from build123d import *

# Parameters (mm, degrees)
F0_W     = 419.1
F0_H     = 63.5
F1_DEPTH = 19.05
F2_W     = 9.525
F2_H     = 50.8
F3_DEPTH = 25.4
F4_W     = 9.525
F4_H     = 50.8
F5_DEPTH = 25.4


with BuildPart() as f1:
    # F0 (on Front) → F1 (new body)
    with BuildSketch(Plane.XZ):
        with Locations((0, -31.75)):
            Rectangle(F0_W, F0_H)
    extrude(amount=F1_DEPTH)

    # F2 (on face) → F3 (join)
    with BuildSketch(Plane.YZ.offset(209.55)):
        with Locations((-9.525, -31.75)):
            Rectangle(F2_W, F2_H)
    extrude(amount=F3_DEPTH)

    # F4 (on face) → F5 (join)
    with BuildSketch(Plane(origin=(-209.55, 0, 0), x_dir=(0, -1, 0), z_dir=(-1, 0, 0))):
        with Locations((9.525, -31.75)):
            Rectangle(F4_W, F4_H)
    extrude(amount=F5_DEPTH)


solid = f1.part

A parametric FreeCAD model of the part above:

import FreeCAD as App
import Part
import Sketcher
from FreeCAD import Vector
Q = App.Units.Quantity

doc = App.newDocument("Part")
body = doc.addObject("PartDesign::Body", "Body")

# Sketch on XZ plane
sketch1 = body.newObject("Sketcher::SketchObject", "Sketch")
sketch1.AttachmentSupport = (doc.getObject("XZ_Plane"), [""])
sketch1.MapMode = "FlatFace"
sketch1.addGeometry(Part.LineSegment(Vector(-210, 0, 0), Vector(-210, -64, 0)), False)
sketch1.addGeometry(Part.LineSegment(Vector(-210, -64, 0), Vector(210, -64, 0)), False)
sketch1.addGeometry(Part.LineSegment(Vector(210, -64, 0), Vector(210, 0, 0)), False)
sketch1.addGeometry(Part.LineSegment(Vector(210, 0, 0), Vector(-210, 0, 0)), False)
sketch1.addConstraint(Sketcher.Constraint("Coincident", 0, 2, 1, 1))
sketch1.addConstraint(Sketcher.Constraint("Coincident", 1, 2, 2, 1))
sketch1.addConstraint(Sketcher.Constraint("Coincident", 2, 2, 3, 1))
sketch1.addConstraint(Sketcher.Constraint("Coincident", 3, 2, 0, 1))
sketch1.addConstraint(Sketcher.Constraint("Vertical", 0))
sketch1.addConstraint(Sketcher.Constraint("Horizontal", 1))
sketch1.addConstraint(Sketcher.Constraint("Vertical", 2))
sketch1.addConstraint(Sketcher.Constraint("Horizontal", 3))
sketch1.addConstraint(Sketcher.Constraint("Symmetric", 2, 2, 3, 2, -1, 1))
sketch1.addConstraint(Sketcher.Constraint("DistanceX", 1, 1, 1, 2, Q("16.5 in")))
sketch1.addConstraint(Sketcher.Constraint("DistanceY", 0, 2, 0, 1, Q("2.5 in")))
pad1 = body.newObject("PartDesign::Pad", "Pad")
pad1.Profile = sketch1
pad1.Length = Q("0.75 in")

# Sketch on YZ plane
sketch2 = body.newObject("Sketcher::SketchObject", "Sketch001")
sketch2.AttachmentSupport = (doc.getObject("YZ_Plane"), [""])
sketch2.MapMode = "FlatFace"
sketch2.AttachmentOffset = App.Placement(Vector(0, 0, 8.25 * 25.4), App.Rotation())
sketch2.addGeometry(Part.LineSegment(Vector(-14, -6, 0), Vector(-14, -57, 0)), False)
sketch2.addGeometry(Part.LineSegment(Vector(-14, -57, 0), Vector(-5, -57, 0)), False)
sketch2.addGeometry(Part.LineSegment(Vector(-5, -57, 0), Vector(-5, -6, 0)), False)
sketch2.addGeometry(Part.LineSegment(Vector(-5, -6, 0), Vector(-14, -6, 0)), False)
sketch2.addConstraint(Sketcher.Constraint("Coincident", 0, 2, 1, 1))
sketch2.addConstraint(Sketcher.Constraint("Coincident", 1, 2, 2, 1))
sketch2.addConstraint(Sketcher.Constraint("Coincident", 2, 2, 3, 1))
sketch2.addConstraint(Sketcher.Constraint("Coincident", 3, 2, 0, 1))
sketch2.addConstraint(Sketcher.Constraint("Vertical", 0))
sketch2.addConstraint(Sketcher.Constraint("Horizontal", 1))
sketch2.addConstraint(Sketcher.Constraint("Vertical", 2))
sketch2.addConstraint(Sketcher.Constraint("Horizontal", 3))
sketch2.addConstraint(Sketcher.Constraint("DistanceY", 0, 2, 0, 1, Q("2 in")))
sketch2.addConstraint(Sketcher.Constraint("DistanceX", 1, 1, 1, 2, Q("0.375 in")))
sketch2.addConstraint(Sketcher.Constraint("DistanceY", 0, 2, -1, 1, Q("2.25 in")))
sketch2.addConstraint(Sketcher.Constraint("DistanceX", 0, 2, -1, 1, Q("0.5625 in")))
pad2 = body.newObject("PartDesign::Pad", "Pad001")
pad2.Profile = sketch2
pad2.Length = Q("1 in")

# Sketch on YZ plane
sketch3 = body.newObject("Sketcher::SketchObject", "Sketch002")
sketch3.AttachmentSupport = (doc.getObject("YZ_Plane"), [""])
sketch3.MapMode = "FlatFace"
sketch3.AttachmentOffset = App.Placement(Vector(0, 0, -8.25 * 25.4), App.Rotation())
sketch3.addGeometry(Part.LineSegment(Vector(-5, -6, 0), Vector(-5, -57, 0)), False)
sketch3.addGeometry(Part.LineSegment(Vector(-5, -57, 0), Vector(-14, -57, 0)), False)
sketch3.addGeometry(Part.LineSegment(Vector(-14, -57, 0), Vector(-14, -6, 0)), False)
sketch3.addGeometry(Part.LineSegment(Vector(-14, -6, 0), Vector(-5, -6, 0)), False)
sketch3.addConstraint(Sketcher.Constraint("Coincident", 0, 2, 1, 1))
sketch3.addConstraint(Sketcher.Constraint("Coincident", 1, 2, 2, 1))
sketch3.addConstraint(Sketcher.Constraint("Coincident", 2, 2, 3, 1))
sketch3.addConstraint(Sketcher.Constraint("Coincident", 3, 2, 0, 1))
sketch3.addConstraint(Sketcher.Constraint("Vertical", 0))
sketch3.addConstraint(Sketcher.Constraint("Horizontal", 1))
sketch3.addConstraint(Sketcher.Constraint("Vertical", 2))
sketch3.addConstraint(Sketcher.Constraint("Horizontal", 3))
sketch3.addConstraint(Sketcher.Constraint("DistanceY", 0, 2, 0, 1, Q("2 in")))
sketch3.addConstraint(Sketcher.Constraint("DistanceX", 1, 2, 1, 1, Q("0.375 in")))
sketch3.addConstraint(Sketcher.Constraint("DistanceY", 0, 2, -1, 1, Q("2.25 in")))
sketch3.addConstraint(Sketcher.Constraint("DistanceX", 0, 2, -1, 1, Q("0.1875 in")))
pad3 = body.newObject("PartDesign::Pad", "Pad002")
pad3.Profile = sketch3
pad3.Length = Q("1 in")
pad3.Reversed = True

doc.recompute()
